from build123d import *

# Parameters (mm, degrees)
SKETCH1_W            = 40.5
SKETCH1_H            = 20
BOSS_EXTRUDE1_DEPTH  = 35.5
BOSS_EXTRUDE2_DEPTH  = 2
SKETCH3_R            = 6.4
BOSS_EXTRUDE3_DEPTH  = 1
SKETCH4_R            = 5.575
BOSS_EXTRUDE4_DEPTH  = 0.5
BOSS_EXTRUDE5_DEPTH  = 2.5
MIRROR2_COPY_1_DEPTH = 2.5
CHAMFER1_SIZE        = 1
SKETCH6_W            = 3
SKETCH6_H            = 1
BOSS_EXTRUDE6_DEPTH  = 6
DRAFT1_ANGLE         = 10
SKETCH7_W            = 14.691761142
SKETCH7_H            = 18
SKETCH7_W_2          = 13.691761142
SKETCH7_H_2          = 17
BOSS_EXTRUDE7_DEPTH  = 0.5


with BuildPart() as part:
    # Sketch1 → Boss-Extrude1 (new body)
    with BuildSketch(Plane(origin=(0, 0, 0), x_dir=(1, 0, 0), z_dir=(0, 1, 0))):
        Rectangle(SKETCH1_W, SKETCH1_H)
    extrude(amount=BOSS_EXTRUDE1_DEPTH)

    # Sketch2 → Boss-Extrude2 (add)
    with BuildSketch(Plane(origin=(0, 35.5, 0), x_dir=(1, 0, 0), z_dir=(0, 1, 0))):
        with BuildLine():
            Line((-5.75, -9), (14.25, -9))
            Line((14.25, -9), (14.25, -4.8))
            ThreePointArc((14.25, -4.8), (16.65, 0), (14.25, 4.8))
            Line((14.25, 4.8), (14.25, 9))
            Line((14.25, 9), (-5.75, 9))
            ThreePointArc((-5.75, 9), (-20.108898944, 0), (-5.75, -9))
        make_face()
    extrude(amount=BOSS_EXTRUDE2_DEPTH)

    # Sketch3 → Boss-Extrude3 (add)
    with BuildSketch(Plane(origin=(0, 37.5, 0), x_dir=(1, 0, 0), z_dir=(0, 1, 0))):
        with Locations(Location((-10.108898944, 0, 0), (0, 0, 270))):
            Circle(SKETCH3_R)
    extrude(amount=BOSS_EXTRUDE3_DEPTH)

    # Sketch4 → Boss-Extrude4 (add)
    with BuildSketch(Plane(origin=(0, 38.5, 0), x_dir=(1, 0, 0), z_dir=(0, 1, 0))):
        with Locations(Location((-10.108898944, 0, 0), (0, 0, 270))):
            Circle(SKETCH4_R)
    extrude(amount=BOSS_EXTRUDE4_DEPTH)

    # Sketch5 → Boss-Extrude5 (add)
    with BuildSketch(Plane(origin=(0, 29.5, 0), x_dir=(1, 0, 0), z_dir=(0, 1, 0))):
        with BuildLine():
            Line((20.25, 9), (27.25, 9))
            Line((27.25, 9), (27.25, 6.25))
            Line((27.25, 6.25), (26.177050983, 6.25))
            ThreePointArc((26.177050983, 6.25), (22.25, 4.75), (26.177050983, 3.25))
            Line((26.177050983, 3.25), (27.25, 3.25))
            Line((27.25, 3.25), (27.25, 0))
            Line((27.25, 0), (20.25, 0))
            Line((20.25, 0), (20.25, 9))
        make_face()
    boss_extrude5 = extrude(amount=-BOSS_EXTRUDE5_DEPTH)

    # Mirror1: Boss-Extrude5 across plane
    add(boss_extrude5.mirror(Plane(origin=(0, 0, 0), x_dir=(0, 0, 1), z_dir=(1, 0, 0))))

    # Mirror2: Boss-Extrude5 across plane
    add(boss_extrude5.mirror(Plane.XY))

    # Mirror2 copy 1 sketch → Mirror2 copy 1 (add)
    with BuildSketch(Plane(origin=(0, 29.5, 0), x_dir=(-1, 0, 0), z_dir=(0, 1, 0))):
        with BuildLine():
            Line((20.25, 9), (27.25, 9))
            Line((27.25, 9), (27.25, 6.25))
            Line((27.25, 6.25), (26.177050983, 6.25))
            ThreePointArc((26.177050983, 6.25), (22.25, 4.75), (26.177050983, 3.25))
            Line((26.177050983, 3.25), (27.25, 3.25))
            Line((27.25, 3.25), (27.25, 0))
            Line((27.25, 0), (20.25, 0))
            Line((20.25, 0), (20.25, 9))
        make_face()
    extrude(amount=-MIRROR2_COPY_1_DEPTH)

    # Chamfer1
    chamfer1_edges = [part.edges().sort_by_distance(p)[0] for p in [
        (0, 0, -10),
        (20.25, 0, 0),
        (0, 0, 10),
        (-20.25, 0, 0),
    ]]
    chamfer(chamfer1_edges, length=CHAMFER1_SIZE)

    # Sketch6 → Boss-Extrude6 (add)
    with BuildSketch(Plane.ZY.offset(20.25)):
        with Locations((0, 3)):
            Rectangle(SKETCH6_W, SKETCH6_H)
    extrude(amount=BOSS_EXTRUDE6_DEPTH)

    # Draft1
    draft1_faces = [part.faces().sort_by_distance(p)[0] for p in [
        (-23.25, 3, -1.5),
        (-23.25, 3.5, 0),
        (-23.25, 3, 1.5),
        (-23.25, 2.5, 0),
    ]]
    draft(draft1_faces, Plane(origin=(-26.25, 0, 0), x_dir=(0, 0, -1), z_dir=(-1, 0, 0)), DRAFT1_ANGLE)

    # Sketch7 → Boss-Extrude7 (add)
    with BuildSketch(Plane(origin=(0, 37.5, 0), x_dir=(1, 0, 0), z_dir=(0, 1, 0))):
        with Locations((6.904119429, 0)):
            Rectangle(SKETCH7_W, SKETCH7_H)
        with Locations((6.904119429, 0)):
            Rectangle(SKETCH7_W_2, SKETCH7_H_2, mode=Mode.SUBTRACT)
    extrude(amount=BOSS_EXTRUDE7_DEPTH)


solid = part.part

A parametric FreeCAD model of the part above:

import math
import FreeCAD as App
import Part
import Sketcher

V = App.Vector


def edges_at(feature, points):
    """Names of the edges that pass closest to the given points."""
    edges = feature.Shape.Edges
    near = lambda p: min(range(len(edges)), key=lambda i: edges[i].distToShape(Part.Vertex(*p))[0])
    return sorted({f"Edge{near(p) + 1}" for p in points})


def faces_at(feature, points):
    """Names of the faces that lie closest to the given points."""
    faces = feature.Shape.Faces
    near = lambda p: min(range(len(faces)), key=lambda i: faces[i].distToShape(Part.Vertex(*p))[0])
    return sorted({f"Face{near(p) + 1}" for p in points})


def add_polygon(sketch, points):
    """Adds a closed chain of lines whose ends are joined by coincident constraints."""
    first, n = sketch.GeometryCount, len(points)
    for a, b in zip(points, points[1:] + points[:1]):
        sketch.addGeometry(Part.LineSegment(App.Vector(*a, 0), App.Vector(*b, 0)), False)
    for i in range(n):
        sketch.addConstraint(Sketcher.Constraint("Coincident", first + i, 2, first + (i + 1) % n, 1))

doc = App.newDocument("Part")
body = doc.addObject("PartDesign::Body", "Body")

sketch1 = doc.addObject("Sketcher::SketchObject", "Sketch")
body.addObject(sketch1)
sketch1.AttachmentSupport = (doc.XZ_Plane, [""])
sketch1.MapMode = "FlatFace"
add_polygon(sketch1, [(-20, -10), (-20, 10), (20, 10), (20, -10)])
sketch1.addConstraint([
    Sketcher.Constraint("Vertical", 0),
    Sketcher.Constraint("Horizontal", 1),
    Sketcher.Constraint("Vertical", 2),
    Sketcher.Constraint("Horizontal", 3),
    Sketcher.Constraint("Symmetric", 0, 2, 2, 2, -1, 1),
    Sketcher.Constraint("DistanceY", 0, 1, 0, 2, 20.0),
    Sketcher.Constraint("DistanceX", 1, 1, 1, 2, 40.5),
])
pad1 = doc.addObject("PartDesign::Pad", "Pad")
body.addObject(pad1)
pad1.Profile = sketch1
pad1.Length = 35.5
pad1.Reversed = True

sketch2 = doc.addObject("Sketcher::SketchObject", "Sketch001")
body.addObject(sketch2)
sketch2.AttachmentSupport = (doc.XZ_Plane, [""])
sketch2.MapMode = "FlatFace"
sketch2.AttachmentOffset = App.Placement(V(0, 0, -35.5), App.Rotation())
sketch2.addGeometry([
    Part.LineSegment(V(-5.8, 9, 0), V(14.2, 9, 0)),
    Part.LineSegment(V(14.2, 9, 0), V(14.2, 4.8, 0)),
    Part.ArcOfCircle(Part.Circle(V(10.7, 0, 0), V(0, 0, 1), 6), math.radians(-53), math.radians(53)),
    Part.LineSegment(V(14.2, -4.8, 0), V(14.2, -9, 0)),
    Part.LineSegment(V(14.2, -9, 0), V(-5.8, -9, 0)),
    Part.ArcOfCircle(Part.Circle(V(-10.1, 0, 0), V(0, 0, 1), 10), math.radians(64), math.radians(296)),
], False)
sketch2.addConstraint([
    Sketcher.Constraint("Coincident", 0, 2, 1, 1),
    Sketcher.Constraint("Coincident", 1, 2, 2, 2),
    Sketcher.Constraint("Coincident", 2, 1, 3, 1),
    Sketcher.Constraint("Coincident", 3, 2, 4, 1),
    Sketcher.Constraint("Coincident", 4, 2, 5, 2),
    Sketcher.Constraint("Coincident", 5, 1, 0, 1),
    Sketcher.Constraint("Horizontal", 0),
    Sketcher.Constraint("Vertical", 1),
    Sketcher.Constraint("Vertical", 3),
    Sketcher.Constraint("Horizontal", 4),
    Sketcher.Constraint("Symmetric", 1, 2, 2, 1, -1),
    Sketcher.Constraint("Symmetric", 4, 2, 5, 1, -1),
    Sketcher.Constraint("Radius", 2, 6.0),
    Sketcher.Constraint("Radius", 5, 10.0),
    Sketcher.Constraint("DistanceX", 0, 1, 0, 2, 20.0),
    Sketcher.Constraint("DistanceY", 1, 2, 1, 1, 4.2),
    Sketcher.Constraint("DistanceY", -1, 1, 0, 2, 9.0),
    Sketcher.Constraint("DistanceX", -1, 1, 2, 3, 10.65),
])
pad2 = doc.addObject("PartDesign::Pad", "Pad001")
body.addObject(pad2)
pad2.Profile = sketch2
pad2.Length = 2
pad2.Reversed = True

sketch3 = doc.addObject("Sketcher::SketchObject", "Sketch002")
body.addObject(sketch3)
sketch3.AttachmentSupport = (doc.XZ_Plane, [""])
sketch3.MapMode = "FlatFace"
sketch3.AttachmentOffset = App.Placement(V(0, 0, -37.5), App.Rotation())
sketch3.addGeometry(Part.Circle(V(-10, 0, 0), V(0, 0, 1), 6), False)
sketch3.addConstraint([
    Sketcher.Constraint("PointOnObject", 0, 3, -1),
    Sketcher.Constraint("Diameter", 0, 12.8),
    Sketcher.Constraint("DistanceX", 0, 3, -1, 1, 10.108899),
])
pad3 = doc.addObject("PartDesign::Pad", "Pad002")
body.addObject(pad3)
pad3.Profile = sketch3
pad3.Length = 1
pad3.Reversed = True

sketch4 = doc.addObject("Sketcher::SketchObject", "Sketch003")
body.addObject(sketch4)
sketch4.AttachmentSupport = (doc.XZ_Plane, [""])
sketch4.MapMode = "FlatFace"
sketch4.AttachmentOffset = App.Placement(V(0, 0, -38.5), App.Rotation())
sketch4.addGeometry(Part.Circle(V(-10, 0, 0), V(0, 0, 1), 6), False)
sketch4.addConstraint([
    Sketcher.Constraint("PointOnObject", 0, 3, -1),
    Sketcher.Constraint("Diameter", 0, 11.15),
    Sketcher.Constraint("DistanceX", 0, 3, -1, 1, 10.108899),
])
pad4 = doc.addObject("PartDesign::Pad", "Pad003")
body.addObject(pad4)
pad4.Profile = sketch4
pad4.Length = 0.5
pad4.Reversed = True

sketch5 = doc.addObject("Sketcher::SketchObject", "Sketch004")
body.addObject(sketch5)
sketch5.AttachmentSupport = (doc.XZ_Plane, [""])
sketch5.MapMode = "FlatFace"
sketch5.AttachmentOffset = App.Placement(V(0, 0, -29.5), App.Rotation())
sketch5.addGeometry([
    Part.LineSegment(V(27.2, -9, 0), V(20.2, -9, 0)),
    Part.LineSegment(V(20.2, -9, 0), V(20.2, 0, 0)),
    Part.LineSegment(V(20.2, 0, 0), V(27.2, 0, 0)),
    Part.LineSegment(V(27.2, 0, 0), V(27.2, -3.2, 0)),
    Part.LineSegment(V(27.2, -3.2, 0), V(26.2, -3.2, 0)),
    Part.ArcOfCircle(Part.Circle(V(24.5, -4.8, 0), V(0, 0, 1), 2.2), math.radians(42), math.radians(318)),
    Part.LineSegment(V(26.2, -6.2, 0), V(27.2, -6.2, 0)),
    Part.LineSegment(V(27.2, -6.2, 0), V(27.2, -9, 0)),
], False)
sketch5.addConstraint([
    Sketcher.Constraint("Coincident", 0, 2, 1, 1),
    Sketcher.Constraint("Coincident", 1, 2, 2, 1),
    Sketcher.Constraint("Coincident", 2, 2, 3, 1),
    Sketcher.Constraint("Coincident", 3, 2, 4, 1),
    Sketcher.Constraint("Coincident", 4, 2, 5, 1),
    Sketcher.Constraint("Coincident", 5, 2, 6, 1),
    Sketcher.Constraint("Coincident", 6, 2, 7, 1),
    Sketcher.Constraint("Coincident", 7, 2, 0, 1),
    Sketcher.Constraint("Horizontal", 0),
    Sketcher.Constraint("Vertical", 1),
    Sketcher.Constraint("Horizontal", 2),
    Sketcher.Constraint("Vertical", 3),
    Sketcher.Constraint("Horizontal", 4),
    Sketcher.Constraint("Horizontal", 6),
    Sketcher.Constraint("Vertical", 7),
    Sketcher.Constraint("PointOnObject", 1, 2, -1),
    Sketcher.Constraint("Vertical", 4, 2, 5, 2),
    Sketcher.Constraint("Vertical", 3, 2, 6, 2),
    Sketcher.Constraint("DistanceX", 0, 2, 0, 1, 7.0),
    Sketcher.Constraint("DistanceY", 1, 1, 1, 2, 9.0),
    Sketcher.Constraint("Radius", 5, 2.25),
    Sketcher.Constraint("DistanceY", 5, 2, 4, 2, 3.0),
    Sketcher.Constraint("DistanceY", 3, 2, 3, 1, 3.25),
    Sketcher.Constraint("DistanceX", -1, 1, 5, 3, 24.5),
    Sketcher.Constraint("DistanceX", -1, 1, 0, 2, 20.25),
])
pad5 = doc.addObject("PartDesign::Pad", "Pad004")
body.addObject(pad5)
pad5.Profile = sketch5
pad5.Length = 2.5
doc.recompute()

mirrored = doc.addObject("PartDesign::Mirrored", "Mirrored")
body.addObject(mirrored)
mirrored.Originals = [pad5]
mirrored.MirrorPlane = (doc.YZ_Plane, [""])
body.Tip = mirrored
doc.recompute()

mirrored2 = doc.addObject("PartDesign::Mirrored", "Mirrored001")
body.addObject(mirrored2)
mirrored2.Originals = [pad5]
mirrored2.MirrorPlane = (doc.XY_Plane, [""])
body.Tip = mirrored2

sketch6 = doc.addObject("Sketcher::SketchObject", "Sketch005")
body.addObject(sketch6)
sketch6.AttachmentSupport = (doc.XZ_Plane, [""])
sketch6.MapMode = "FlatFace"
sketch6.AttachmentOffset = App.Placement(V(0, 0, -29.5), App.Rotation())
sketch6.addGeometry([
    Part.LineSegment(V(-27.2, 9, 0), V(-20.2, 9, 0)),
    Part.LineSegment(V(-20.2, 9, 0), V(-20.2, 0, 0)),
    Part.LineSegment(V(-20.2, 0, 0), V(-27.2, 0, 0)),
    Part.LineSegment(V(-27.2, 0, 0), V(-27.2, 3.2, 0)),
    Part.LineSegment(V(-27.2, 3.2, 0), V(-26.2, 3.2, 0)),
    Part.ArcOfCircle(Part.Circle(V(-24.5, 4.8, 0), V(0, 0, 1), 2.2), math.radians(-138), math.radians(138)),
    Part.LineSegment(V(-26.2, 6.2, 0), V(-27.2, 6.2, 0)),
    Part.LineSegment(V(-27.2, 6.2, 0), V(-27.2, 9, 0)),
], False)
sketch6.addConstraint([
    Sketcher.Constraint("Coincident", 0, 2, 1, 1),
    Sketcher.Constraint("Coincident", 1, 2, 2, 1),
    Sketcher.Constraint("Coincident", 2, 2, 3, 1),
    Sketcher.Constraint("Coincident", 3, 2, 4, 1),
    Sketcher.Constraint("Coincident", 4, 2, 5, 1),
    Sketcher.Constraint("Coincident", 5, 2, 6, 1),
    Sketcher.Constraint("Coincident", 6, 2, 7, 1),
    Sketcher.Constraint("Coincident", 7, 2, 0, 1),
    Sketcher.Constraint("Horizontal", 0),
    Sketcher.Constraint("Vertical", 1),
    Sketcher.Constraint("Horizontal", 2),
    Sketcher.Constraint("Vertical", 3),
    Sketcher.Constraint("Horizontal", 4),
    Sketcher.Constraint("Horizontal", 6),
    Sketcher.Constraint("Vertical", 7),
    Sketcher.Constraint("PointOnObject", 1, 2, -1),
    Sketcher.Constraint("Vertical", 4, 2, 5, 2),
    Sketcher.Constraint("Vertical", 3, 2, 6, 2),
    Sketcher.Constraint("DistanceX", 0, 1, 0, 2, 7.0),
    Sketcher.Constraint("DistanceY", 1, 2, 1, 1, 9.0),
    Sketcher.Constraint("Radius", 5, 2.25),
    Sketcher.Constraint("DistanceY", 4, 2, 5, 2, 3.0),
    Sketcher.Constraint("DistanceY", 3, 1, 3, 2, 3.25),
    Sketcher.Constraint("DistanceX", 5, 3, -1, 1, 24.5),
    Sketcher.Constraint("DistanceX", 0, 2, -1, 1, 20.25),
])
pad6 = doc.addObject("PartDesign::Pad", "Pad005")
body.addObject(pad6)
pad6.Profile = sketch6
pad6.Length = 2.5
doc.recompute()

chamfer = doc.addObject("PartDesign::Chamfer", "Chamfer")
body.addObject(chamfer)
chamfer.Base = (pad6, edges_at(pad6, [
    (0, 0, -10),
    (20.25, 0, 0),
    (0, 0, 10),
    (-20.25, 0, 0),
]))
chamfer.Size = 1

sketch7 = doc.addObject("Sketcher::SketchObject", "Sketch006")
body.addObject(sketch7)
sketch7.AttachmentSupport = (doc.YZ_Plane, [""])
sketch7.MapMode = "FlatFace"
sketch7.AttachmentOffset = App.Placement(V(0, 0, -20.25), App.Rotation())
add_polygon(sketch7, [(3.5, -1.5), (2.5, -1.5), (2.5, 1.5), (3.5, 1.5)])
sketch7.addConstraint([
    Sketcher.Constraint("Horizontal", 0),
    Sketcher.Constraint("Vertical", 1),
    Sketcher.Constraint("Horizontal", 2),
    Sketcher.Constraint("Vertical", 3),
    Sketcher.Constraint("DistanceX", 0, 2, 0, 1, 1.0),
    Sketcher.Constraint("DistanceY", 1, 1, 1, 2, 3.0),
    Sketcher.Constraint("DistanceX", -1, 1, 0, 2, 2.5),
    Sketcher.Constraint("DistanceY", 0, 2, -1, 1, 1.5),
])
pad7 = doc.addObject("PartDesign::Pad", "Pad006")
body.addObject(pad7)
pad7.Profile = sketch7
pad7.Length = 6
pad7.Reversed = True
doc.recompute()

datumplane = doc.addObject("PartDesign::Plane", "DatumPlane")
body.addObject(datumplane)
datumplane.AttachmentSupport = (doc.YZ_Plane, [""])
datumplane.MapMode = "FlatFace"
datumplane.AttachmentOffset = App.Placement(V(0, 0, -26.25), App.Rotation())
draft = doc.addObject("PartDesign::Draft", "Draft")
body.addObject(draft)
draft.Base = (pad7, faces_at(pad7, [
    (-23.25, 3, -1.5),
    (-23.25, 3.5, 0),
    (-23.25, 3, 1.5),
    (-23.25, 2.5, 0),
]))
draft.NeutralPlane = (datumplane, [""])
draft.Angle = 10
draft.Reversed = True

sketch8 = doc.addObject("Sketcher::SketchObject", "Sketch007")
body.addObject(sketch8)
sketch8.AttachmentSupport = (doc.XZ_Plane, [""])
sketch8.MapMode = "FlatFace"
sketch8.AttachmentOffset = App.Placement(V(0, 0, -37.5), App.Rotation())
add_polygon(sketch8, [(0, -9), (0, 9), (14, 9), (14, -9)])
add_polygon(sketch8, [(14, 8), (0, 8), (0, -8), (14, -8)])
sketch8.addConstraint([
    Sketcher.Constraint("Vertical", 0),
    Sketcher.Constraint("Horizontal", 1),
    Sketcher.Constraint("Vertical", 2),
    Sketcher.Constraint("Horizontal", 3),
    Sketcher.Constraint("Horizontal", 4),
    Sketcher.Constraint("Vertical", 5),
    Sketcher.Constraint("Horizontal", 6),
    Sketcher.Constraint("Vertical", 7),
    Sketcher.Constraint("DistanceY", 0, 1, 0, 2, 18.0),
    Sketcher.Constraint("DistanceY", 5, 2, 5, 1, 17.0),
    Sketcher.Constraint("DistanceY", -1, 1, 0, 2, 9.0),
    Sketcher.Constraint("DistanceY", -1, 1, 4, 2, 8.5),
    Sketcher.Constraint("DistanceX", 0, 2, 4, 2, 0.5),
    Sketcher.Constraint("DistanceX", 6, 2, 2, 2, 0.5),
    Sketcher.Constraint("DistanceX", -1, 1, 1, 2, 14.25),
    Sketcher.Constraint("DistanceX", 1, 1, 1, 2, 14.691761),
])
pad8 = doc.addObject("PartDesign::Pad", "Pad007")
body.addObject(pad8)
pad8.Profile = sketch8
pad8.Length = 0.5
pad8.Reversed = True

doc.recompute()
